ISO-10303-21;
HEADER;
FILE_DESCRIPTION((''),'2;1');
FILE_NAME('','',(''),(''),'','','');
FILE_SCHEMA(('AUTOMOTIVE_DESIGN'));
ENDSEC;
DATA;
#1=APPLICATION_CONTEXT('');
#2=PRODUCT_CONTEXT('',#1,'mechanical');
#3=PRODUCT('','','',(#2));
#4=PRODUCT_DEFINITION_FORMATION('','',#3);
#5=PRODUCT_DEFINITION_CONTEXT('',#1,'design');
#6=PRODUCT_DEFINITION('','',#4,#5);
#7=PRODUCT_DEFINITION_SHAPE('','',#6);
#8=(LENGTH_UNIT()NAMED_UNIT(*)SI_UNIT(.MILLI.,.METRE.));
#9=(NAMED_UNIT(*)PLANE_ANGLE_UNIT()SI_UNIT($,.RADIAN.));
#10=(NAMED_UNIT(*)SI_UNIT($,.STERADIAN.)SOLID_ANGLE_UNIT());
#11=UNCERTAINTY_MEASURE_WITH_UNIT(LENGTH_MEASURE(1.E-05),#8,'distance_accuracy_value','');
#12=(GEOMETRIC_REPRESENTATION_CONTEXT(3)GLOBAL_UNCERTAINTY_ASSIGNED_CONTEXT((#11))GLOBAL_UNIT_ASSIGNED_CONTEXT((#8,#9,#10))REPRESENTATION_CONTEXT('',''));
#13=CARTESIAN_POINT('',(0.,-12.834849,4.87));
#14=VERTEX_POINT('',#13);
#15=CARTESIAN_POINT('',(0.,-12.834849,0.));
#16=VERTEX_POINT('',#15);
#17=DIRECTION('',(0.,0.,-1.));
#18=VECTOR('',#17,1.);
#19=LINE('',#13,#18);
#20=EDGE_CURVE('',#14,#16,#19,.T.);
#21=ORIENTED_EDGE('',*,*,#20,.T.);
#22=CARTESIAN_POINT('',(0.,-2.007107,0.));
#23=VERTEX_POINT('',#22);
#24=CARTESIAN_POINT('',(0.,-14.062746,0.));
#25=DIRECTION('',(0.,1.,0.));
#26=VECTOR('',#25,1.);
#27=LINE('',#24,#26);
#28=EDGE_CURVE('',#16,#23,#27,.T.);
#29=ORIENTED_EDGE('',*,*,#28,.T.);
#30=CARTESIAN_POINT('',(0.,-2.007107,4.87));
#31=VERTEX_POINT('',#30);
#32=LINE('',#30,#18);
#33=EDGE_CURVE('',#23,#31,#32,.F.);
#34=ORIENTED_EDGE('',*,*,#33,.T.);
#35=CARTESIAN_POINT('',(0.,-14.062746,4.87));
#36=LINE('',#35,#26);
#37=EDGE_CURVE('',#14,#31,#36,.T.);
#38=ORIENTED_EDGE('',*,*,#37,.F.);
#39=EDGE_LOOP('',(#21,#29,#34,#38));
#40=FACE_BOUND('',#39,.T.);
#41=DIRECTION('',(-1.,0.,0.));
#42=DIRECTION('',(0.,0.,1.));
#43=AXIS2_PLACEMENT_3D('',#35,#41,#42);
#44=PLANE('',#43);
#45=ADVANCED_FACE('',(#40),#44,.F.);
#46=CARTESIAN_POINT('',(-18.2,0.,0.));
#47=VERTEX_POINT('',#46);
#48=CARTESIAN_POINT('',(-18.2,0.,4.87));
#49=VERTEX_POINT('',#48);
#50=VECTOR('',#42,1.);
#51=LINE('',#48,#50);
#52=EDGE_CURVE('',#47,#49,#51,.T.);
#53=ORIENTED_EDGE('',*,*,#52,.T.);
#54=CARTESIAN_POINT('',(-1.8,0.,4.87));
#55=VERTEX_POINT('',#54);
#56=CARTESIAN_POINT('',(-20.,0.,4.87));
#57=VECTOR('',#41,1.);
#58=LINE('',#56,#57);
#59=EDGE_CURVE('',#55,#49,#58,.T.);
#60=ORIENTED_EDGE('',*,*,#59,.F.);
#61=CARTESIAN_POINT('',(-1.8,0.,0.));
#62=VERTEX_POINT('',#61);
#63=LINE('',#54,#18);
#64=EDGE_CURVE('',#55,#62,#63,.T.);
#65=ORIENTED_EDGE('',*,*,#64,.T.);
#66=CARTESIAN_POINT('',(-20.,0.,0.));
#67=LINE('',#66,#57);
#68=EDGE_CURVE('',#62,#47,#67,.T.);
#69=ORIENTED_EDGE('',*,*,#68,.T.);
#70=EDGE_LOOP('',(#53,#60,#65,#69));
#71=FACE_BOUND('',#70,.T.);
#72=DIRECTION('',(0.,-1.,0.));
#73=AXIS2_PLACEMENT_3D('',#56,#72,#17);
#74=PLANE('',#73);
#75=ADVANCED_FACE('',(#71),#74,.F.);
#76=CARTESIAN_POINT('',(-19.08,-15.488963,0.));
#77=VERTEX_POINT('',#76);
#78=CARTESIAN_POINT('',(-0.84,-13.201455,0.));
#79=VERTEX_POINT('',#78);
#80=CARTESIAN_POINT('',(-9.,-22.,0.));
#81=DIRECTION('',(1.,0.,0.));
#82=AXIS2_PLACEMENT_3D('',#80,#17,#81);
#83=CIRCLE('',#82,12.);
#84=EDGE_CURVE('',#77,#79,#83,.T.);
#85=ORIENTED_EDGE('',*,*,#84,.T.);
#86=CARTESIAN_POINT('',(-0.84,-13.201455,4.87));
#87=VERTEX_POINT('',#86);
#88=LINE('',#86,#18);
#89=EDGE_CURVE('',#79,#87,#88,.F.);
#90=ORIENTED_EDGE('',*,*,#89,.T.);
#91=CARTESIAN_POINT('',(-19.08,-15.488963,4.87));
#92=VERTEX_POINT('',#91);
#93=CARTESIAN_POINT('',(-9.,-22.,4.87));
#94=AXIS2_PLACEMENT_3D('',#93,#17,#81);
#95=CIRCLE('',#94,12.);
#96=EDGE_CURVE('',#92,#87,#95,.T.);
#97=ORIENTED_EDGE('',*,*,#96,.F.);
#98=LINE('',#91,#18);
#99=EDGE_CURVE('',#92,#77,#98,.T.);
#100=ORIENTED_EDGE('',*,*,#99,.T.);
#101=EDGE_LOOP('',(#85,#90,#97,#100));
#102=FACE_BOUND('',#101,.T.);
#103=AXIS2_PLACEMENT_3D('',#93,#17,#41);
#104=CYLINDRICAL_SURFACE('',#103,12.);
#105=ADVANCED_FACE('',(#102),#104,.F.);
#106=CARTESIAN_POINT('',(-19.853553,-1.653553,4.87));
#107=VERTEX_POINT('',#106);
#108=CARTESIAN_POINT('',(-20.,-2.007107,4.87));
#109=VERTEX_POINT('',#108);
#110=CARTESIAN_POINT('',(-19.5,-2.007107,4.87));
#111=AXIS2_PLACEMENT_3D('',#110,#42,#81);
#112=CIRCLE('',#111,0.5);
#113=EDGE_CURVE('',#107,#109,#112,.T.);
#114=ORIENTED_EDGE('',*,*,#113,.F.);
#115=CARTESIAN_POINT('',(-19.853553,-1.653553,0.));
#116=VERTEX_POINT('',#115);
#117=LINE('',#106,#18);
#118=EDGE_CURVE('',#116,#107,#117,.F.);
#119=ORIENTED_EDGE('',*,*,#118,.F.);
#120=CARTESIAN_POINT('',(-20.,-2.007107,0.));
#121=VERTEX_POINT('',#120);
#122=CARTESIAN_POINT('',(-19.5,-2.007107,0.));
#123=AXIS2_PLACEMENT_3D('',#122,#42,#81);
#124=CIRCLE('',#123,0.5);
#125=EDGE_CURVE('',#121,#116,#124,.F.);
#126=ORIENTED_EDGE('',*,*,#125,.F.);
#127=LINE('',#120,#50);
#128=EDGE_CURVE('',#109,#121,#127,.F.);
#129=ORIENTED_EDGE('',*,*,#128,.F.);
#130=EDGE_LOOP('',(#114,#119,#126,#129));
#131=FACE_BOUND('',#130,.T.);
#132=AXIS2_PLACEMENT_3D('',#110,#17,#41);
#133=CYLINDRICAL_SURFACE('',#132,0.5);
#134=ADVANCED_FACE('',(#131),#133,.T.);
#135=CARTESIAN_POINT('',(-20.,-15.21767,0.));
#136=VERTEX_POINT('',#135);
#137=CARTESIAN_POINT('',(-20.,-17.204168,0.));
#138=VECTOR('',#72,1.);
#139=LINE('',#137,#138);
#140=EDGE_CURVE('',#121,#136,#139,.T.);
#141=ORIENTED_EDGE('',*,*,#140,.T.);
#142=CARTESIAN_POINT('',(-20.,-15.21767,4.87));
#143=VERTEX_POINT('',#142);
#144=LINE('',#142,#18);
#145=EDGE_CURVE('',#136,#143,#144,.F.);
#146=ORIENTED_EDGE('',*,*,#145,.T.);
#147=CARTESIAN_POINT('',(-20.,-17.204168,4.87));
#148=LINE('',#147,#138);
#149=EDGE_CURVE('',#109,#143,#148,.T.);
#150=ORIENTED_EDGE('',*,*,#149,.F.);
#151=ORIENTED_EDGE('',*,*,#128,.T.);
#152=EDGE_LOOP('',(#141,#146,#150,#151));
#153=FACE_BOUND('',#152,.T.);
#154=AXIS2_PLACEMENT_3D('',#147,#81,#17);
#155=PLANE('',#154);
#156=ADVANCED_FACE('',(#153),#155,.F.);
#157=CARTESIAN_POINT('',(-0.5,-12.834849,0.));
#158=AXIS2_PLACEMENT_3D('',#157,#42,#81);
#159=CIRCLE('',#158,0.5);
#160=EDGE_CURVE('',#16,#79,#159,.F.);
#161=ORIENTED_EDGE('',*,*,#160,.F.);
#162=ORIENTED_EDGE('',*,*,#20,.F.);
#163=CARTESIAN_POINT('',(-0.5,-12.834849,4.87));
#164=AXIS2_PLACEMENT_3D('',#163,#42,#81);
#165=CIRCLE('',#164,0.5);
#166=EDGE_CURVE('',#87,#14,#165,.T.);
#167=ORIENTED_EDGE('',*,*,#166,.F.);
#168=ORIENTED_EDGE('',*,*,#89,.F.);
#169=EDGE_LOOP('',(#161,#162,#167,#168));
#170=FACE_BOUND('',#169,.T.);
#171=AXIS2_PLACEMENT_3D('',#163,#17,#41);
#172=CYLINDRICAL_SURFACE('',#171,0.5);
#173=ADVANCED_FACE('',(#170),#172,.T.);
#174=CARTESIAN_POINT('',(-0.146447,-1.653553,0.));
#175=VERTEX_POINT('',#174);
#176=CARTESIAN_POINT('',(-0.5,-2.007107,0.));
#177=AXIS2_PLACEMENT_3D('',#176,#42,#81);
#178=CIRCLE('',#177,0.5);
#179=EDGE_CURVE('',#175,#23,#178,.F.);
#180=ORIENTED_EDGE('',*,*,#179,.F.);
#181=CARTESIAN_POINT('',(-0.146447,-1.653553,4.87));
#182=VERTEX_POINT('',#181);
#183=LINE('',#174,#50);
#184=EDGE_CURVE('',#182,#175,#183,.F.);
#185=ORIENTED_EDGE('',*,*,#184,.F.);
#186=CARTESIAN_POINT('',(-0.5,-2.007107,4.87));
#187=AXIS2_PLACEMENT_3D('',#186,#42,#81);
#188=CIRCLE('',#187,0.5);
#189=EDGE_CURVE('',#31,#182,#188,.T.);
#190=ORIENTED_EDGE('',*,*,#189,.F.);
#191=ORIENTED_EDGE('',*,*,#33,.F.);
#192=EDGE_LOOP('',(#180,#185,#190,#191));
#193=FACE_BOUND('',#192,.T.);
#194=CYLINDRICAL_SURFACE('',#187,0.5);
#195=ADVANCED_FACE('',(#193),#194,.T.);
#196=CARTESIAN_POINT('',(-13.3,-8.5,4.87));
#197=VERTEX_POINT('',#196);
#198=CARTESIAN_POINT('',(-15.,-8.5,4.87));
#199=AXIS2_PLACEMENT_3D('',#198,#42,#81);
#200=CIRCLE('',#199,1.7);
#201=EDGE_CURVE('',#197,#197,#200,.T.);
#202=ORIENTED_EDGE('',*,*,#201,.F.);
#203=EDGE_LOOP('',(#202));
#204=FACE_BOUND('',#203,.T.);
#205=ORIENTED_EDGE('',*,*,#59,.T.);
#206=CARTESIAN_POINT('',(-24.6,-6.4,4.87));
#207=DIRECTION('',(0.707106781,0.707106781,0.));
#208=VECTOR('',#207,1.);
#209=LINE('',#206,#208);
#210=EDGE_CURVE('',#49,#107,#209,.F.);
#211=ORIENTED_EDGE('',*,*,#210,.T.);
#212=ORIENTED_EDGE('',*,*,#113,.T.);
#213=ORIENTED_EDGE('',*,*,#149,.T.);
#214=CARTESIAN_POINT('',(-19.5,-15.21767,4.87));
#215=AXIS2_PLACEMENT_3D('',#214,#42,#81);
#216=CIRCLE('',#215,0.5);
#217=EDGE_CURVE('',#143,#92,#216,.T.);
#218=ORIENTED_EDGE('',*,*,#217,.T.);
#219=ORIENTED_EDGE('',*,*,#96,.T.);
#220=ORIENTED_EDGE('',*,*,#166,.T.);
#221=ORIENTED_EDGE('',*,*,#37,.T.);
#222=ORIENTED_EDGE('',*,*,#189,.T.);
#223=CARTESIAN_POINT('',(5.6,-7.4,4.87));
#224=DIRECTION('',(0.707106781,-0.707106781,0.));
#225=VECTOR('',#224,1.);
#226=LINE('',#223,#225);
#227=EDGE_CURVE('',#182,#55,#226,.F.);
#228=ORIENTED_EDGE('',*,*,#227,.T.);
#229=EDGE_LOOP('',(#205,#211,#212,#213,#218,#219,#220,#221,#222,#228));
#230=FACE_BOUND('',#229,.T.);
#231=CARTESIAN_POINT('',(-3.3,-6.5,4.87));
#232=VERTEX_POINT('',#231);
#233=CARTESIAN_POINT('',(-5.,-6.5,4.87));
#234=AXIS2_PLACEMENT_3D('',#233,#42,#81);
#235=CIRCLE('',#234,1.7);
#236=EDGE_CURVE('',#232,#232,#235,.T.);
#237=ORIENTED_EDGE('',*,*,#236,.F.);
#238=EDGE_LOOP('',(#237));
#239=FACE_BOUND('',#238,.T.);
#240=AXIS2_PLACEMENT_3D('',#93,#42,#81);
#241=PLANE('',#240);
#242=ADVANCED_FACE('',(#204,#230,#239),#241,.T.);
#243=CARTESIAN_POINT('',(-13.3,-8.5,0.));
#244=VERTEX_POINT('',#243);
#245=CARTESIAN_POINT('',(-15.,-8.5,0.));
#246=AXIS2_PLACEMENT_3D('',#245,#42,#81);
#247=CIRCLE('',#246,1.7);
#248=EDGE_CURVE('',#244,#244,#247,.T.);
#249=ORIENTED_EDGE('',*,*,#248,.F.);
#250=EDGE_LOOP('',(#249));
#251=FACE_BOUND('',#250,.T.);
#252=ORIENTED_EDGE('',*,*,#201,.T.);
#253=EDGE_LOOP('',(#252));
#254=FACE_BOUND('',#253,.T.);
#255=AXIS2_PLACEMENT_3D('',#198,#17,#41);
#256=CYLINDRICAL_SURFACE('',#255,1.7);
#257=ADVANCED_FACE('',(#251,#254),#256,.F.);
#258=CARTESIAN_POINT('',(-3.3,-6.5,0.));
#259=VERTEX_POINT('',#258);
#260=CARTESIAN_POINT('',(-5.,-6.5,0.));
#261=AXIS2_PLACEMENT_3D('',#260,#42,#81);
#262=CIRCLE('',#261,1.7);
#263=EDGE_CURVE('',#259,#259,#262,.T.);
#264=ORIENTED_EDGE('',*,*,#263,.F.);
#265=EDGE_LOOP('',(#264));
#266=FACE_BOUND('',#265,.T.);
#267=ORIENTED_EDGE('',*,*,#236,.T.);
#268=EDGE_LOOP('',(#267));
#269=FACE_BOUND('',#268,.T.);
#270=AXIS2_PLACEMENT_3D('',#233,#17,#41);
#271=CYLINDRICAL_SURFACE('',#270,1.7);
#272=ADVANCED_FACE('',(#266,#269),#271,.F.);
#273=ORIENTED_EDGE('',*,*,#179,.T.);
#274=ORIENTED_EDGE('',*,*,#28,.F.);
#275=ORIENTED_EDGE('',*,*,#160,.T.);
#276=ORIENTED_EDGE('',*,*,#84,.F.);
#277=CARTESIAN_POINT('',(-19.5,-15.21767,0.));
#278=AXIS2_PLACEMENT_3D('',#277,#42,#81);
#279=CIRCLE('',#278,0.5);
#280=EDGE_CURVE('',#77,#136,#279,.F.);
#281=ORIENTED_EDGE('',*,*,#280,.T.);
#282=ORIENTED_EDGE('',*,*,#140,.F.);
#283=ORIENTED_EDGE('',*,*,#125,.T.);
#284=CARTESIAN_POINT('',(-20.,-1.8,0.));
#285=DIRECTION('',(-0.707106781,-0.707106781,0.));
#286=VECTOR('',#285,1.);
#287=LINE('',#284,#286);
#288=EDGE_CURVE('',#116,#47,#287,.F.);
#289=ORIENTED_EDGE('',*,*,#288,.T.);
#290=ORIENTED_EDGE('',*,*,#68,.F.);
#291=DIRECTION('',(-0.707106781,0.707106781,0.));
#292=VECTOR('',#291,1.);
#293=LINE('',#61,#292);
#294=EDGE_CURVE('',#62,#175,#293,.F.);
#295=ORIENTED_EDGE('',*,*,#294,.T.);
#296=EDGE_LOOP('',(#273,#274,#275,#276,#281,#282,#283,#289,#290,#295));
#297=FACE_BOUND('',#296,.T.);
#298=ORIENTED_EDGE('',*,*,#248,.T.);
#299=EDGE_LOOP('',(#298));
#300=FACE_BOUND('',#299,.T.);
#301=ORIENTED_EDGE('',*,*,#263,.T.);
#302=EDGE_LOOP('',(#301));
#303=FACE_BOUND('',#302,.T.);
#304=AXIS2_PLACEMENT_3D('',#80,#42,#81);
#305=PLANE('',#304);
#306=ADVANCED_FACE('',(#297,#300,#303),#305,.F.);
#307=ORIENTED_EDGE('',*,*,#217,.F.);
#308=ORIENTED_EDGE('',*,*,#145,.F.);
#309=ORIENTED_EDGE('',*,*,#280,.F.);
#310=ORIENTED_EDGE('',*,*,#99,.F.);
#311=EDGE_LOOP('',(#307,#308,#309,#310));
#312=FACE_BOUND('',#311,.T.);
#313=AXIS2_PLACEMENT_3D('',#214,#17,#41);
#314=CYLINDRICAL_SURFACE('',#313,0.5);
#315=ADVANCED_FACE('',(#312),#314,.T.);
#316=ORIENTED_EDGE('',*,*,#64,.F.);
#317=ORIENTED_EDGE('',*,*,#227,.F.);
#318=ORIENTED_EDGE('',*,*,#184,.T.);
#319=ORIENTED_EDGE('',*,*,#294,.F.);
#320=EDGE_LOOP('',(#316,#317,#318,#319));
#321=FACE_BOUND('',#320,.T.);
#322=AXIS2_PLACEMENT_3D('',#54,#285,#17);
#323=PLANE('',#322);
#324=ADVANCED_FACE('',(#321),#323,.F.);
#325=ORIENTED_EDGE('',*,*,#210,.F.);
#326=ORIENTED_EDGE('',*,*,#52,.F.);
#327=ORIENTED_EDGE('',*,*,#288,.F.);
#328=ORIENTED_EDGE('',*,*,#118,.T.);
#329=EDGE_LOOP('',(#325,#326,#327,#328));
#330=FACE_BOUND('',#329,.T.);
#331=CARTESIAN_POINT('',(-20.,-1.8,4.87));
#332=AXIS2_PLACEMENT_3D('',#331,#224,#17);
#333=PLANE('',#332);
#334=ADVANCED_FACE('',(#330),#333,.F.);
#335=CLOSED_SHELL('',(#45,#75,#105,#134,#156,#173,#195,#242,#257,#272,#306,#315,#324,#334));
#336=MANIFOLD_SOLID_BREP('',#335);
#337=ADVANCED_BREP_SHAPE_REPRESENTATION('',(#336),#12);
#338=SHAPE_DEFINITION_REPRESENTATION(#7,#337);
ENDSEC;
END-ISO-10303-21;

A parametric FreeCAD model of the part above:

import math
import FreeCAD as App
import Part
import Sketcher
Q = App.Units.Quantity


def edges_at(feature, points):
    """Names of the edges that pass closest to the given points."""
    edges = feature.Shape.Edges
    near = lambda p: min(range(len(edges)), key=lambda i: edges[i].distToShape(Part.Vertex(*p))[0])
    return sorted({f"Edge{near(p) + 1}" for p in points})

doc = App.newDocument("Part")
body = doc.addObject("PartDesign::Body", "Body")

# Sketch on XY plane
sketch1 = body.newObject("Sketcher::SketchObject", "Sketch")
sketch1.AttachmentSupport = (doc.getObject("XY_Plane"), [""])
sketch1.MapMode = "FlatFace"
sketch1.addGeometry([
    Part.LineSegment(App.Vector(0, 0, 0), App.Vector(-20, 0, 0)),  # 0
    Part.LineSegment(App.Vector(-20, 0, 0), App.Vector(-20, -17.204168, 0)),  # 1
    Part.ArcOfCircle(Part.Circle(App.Vector(-9, -22, 0), App.Vector(0, 0, 1), 12), math.radians(41.409622), math.radians(156.443536)),  # 2
    Part.LineSegment(App.Vector(0, -14.062746, 0), App.Vector(0, 0, 0)),  # 3
    Part.Circle(App.Vector(-15, -8.5, 0), App.Vector(0, 0, 1), 1.7),  # 4
    Part.Circle(App.Vector(-5, -6.5, 0), App.Vector(0, 0, 1), 1.7),  # 5
], False)
sketch1.addConstraint([
    Sketcher.Constraint("Coincident", 0, 2, 1, 1),
    Sketcher.Constraint("Coincident", 1, 2, 2, 2),
    Sketcher.Constraint("Coincident", 2, 1, 3, 1),
    Sketcher.Constraint("Coincident", 3, 2, 0, 1),
    Sketcher.Constraint("Horizontal", 0),
    Sketcher.Constraint("Vertical", 1),
    Sketcher.Constraint("Vertical", 3),
    Sketcher.Constraint("Coincident", 3, 2, -1, 1),
    Sketcher.Constraint("Equal", 4, 5),
    Sketcher.Constraint("Radius", 2, Q("12 mm")),
    Sketcher.Constraint("Diameter", 4, Q("3.4 mm")),
    Sketcher.Constraint("DistanceX", 0, 2, 0, 1, Q("20 mm")),
    Sketcher.Constraint("DistanceX", 2, 3, -1, 1, Q("9 mm")),
    Sketcher.Constraint("DistanceY", 2, 3, -1, 1, Q("22 mm")),
    Sketcher.Constraint("DistanceX", 4, 3, -1, 1, Q("15 mm")),
    Sketcher.Constraint("DistanceX", 5, 3, -1, 1, Q("5 mm")),
    Sketcher.Constraint("DistanceY", 4, 3, 5, 3, Q("2 mm")),
    Sketcher.Constraint("DistanceY", 4, 3, -1, 1, Q("8.5 mm")),
])
pad1 = body.newObject("PartDesign::Pad", "Pad")
pad1.Profile = sketch1
pad1.Length = 4.87
doc.recompute()

chamfer = body.newObject("PartDesign::Chamfer", "Chamfer")
chamfer.Base = (pad1, edges_at(pad1, [(-20, 0, 2.435), (0, 0, 2.435)]))
chamfer.Size = 1.8
doc.recompute()

fillet = body.newObject("PartDesign::Fillet", "Fillet")
fillet.Base = (chamfer, edges_at(chamfer, [
    (0, -1.8, 2.435),
    (-20, -1.8, 2.435),
    (0, -14.063, 2.435),
    (-20, -17.204, 2.435),
]))
fillet.Radius = 0.5

doc.recompute()
